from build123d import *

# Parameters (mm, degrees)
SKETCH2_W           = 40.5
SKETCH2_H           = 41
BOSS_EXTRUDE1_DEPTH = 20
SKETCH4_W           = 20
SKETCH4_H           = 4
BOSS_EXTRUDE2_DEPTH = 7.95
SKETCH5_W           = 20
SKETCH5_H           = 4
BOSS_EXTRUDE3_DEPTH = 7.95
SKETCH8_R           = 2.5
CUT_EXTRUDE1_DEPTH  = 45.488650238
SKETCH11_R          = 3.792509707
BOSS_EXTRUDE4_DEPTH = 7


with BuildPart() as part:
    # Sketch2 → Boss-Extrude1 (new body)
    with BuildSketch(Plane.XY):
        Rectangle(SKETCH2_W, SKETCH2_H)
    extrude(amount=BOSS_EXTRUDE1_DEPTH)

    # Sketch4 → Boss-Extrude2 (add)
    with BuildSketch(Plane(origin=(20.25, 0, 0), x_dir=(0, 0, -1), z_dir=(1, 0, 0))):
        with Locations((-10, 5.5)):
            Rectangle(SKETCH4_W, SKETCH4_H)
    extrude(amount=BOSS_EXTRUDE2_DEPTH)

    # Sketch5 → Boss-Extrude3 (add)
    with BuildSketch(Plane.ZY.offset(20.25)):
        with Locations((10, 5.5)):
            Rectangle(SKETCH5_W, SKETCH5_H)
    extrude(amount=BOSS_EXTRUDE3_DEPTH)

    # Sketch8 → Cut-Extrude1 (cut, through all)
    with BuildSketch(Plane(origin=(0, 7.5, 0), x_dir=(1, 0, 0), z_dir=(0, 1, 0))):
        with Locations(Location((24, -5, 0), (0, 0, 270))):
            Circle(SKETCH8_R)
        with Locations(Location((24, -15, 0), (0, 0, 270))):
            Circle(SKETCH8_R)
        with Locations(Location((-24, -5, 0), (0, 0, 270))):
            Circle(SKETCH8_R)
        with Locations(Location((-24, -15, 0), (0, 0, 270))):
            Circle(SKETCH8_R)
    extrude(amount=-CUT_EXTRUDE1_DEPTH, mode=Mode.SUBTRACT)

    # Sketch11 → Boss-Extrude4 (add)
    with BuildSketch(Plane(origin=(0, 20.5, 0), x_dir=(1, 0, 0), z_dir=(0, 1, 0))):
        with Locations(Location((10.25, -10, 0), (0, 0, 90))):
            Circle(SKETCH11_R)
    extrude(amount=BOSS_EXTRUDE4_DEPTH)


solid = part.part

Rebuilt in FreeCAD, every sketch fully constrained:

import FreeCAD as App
import Part
import Sketcher

V = App.Vector

doc = App.newDocument("Part")
body = doc.addObject("PartDesign::Body", "Body")

# Sketch on XY plane
sketch1 = body.newObject("Sketcher::SketchObject", "Sketch")
sketch1.AttachmentSupport = (doc.getObject("XY_Plane"), [""])
sketch1.MapMode = "FlatFace"
sketch1.addGeometry([
    Part.LineSegment(V(-20, 20, 0), V(-20, -20, 0)),
    Part.LineSegment(V(-20, -20, 0), V(20, -20, 0)),
    Part.LineSegment(V(20, -20, 0), V(20, 20, 0)),
    Part.LineSegment(V(20, 20, 0), V(-20, 20, 0)),
], False)
sketch1.addConstraint([
    Sketcher.Constraint("Coincident", 0, 2, 1, 1),
    Sketcher.Constraint("Coincident", 1, 2, 2, 1),
    Sketcher.Constraint("Coincident", 2, 2, 3, 1),
    Sketcher.Constraint("Coincident", 3, 2, 0, 1),
    Sketcher.Constraint("Vertical", 0),
    Sketcher.Constraint("Horizontal", 1),
    Sketcher.Constraint("Vertical", 2),
    Sketcher.Constraint("Horizontal", 3),
    Sketcher.Constraint("Symmetric", 0, 2, 2, 2, -1, 1),
    Sketcher.Constraint("DistanceY", 0, 2, 0, 1, 41.0),
    Sketcher.Constraint("DistanceX", 1, 1, 1, 2, 40.5),
])
pad1 = body.newObject("PartDesign::Pad", "Pad")
pad1.Profile = sketch1
pad1.Length = 20

# Sketch on YZ plane
sketch2 = body.newObject("Sketcher::SketchObject", "Sketch001")
sketch2.AttachmentSupport = (doc.getObject("YZ_Plane"), [""])
sketch2.MapMode = "FlatFace"
sketch2.AttachmentOffset = App.Placement(V(0, 0, 20.25), App.Rotation())
sketch2.addGeometry([
    Part.LineSegment(V(7.5, 20, 0), V(3.5, 20, 0)),
    Part.LineSegment(V(3.5, 20, 0), V(3.5, 0, 0)),
    Part.LineSegment(V(3.5, 0, 0), V(7.5, 0, 0)),
    Part.LineSegment(V(7.5, 0, 0), V(7.5, 20, 0)),
], False)
sketch2.addConstraint([
    Sketcher.Constraint("Coincident", 0, 2, 1, 1),
    Sketcher.Constraint("Coincident", 1, 2, 2, 1),
    Sketcher.Constraint("Coincident", 2, 2, 3, 1),
    Sketcher.Constraint("Coincident", 3, 2, 0, 1),
    Sketcher.Constraint("Horizontal", 0),
    Sketcher.Constraint("Vertical", 1),
    Sketcher.Constraint("Horizontal", 2),
    Sketcher.Constraint("Vertical", 3),
    Sketcher.Constraint("PointOnObject", 1, 2, -1),
    Sketcher.Constraint("DistanceX", 0, 2, 0, 1, 4.0),
    Sketcher.Constraint("DistanceY", 1, 2, 1, 1, 20.0),
    Sketcher.Constraint("DistanceX", -1, 1, 0, 2, 3.5),
])
pad2 = body.newObject("PartDesign::Pad", "Pad001")
pad2.Profile = sketch2
pad2.Length = 7.95

# Sketch on YZ plane
sketch3 = body.newObject("Sketcher::SketchObject", "Sketch002")
sketch3.AttachmentSupport = (doc.getObject("YZ_Plane"), [""])
sketch3.MapMode = "FlatFace"
sketch3.AttachmentOffset = App.Placement(V(0, 0, -20.25), App.Rotation())
sketch3.addGeometry([
    Part.LineSegment(V(7.5, 0, 0), V(3.5, 0, 0)),
    Part.LineSegment(V(3.5, 0, 0), V(3.5, 20, 0)),
    Part.LineSegment(V(3.5, 20, 0), V(7.5, 20, 0)),
    Part.LineSegment(V(7.5, 20, 0), V(7.5, 0, 0)),
], False)
sketch3.addConstraint([
    Sketcher.Constraint("Coincident", 0, 2, 1, 1),
    Sketcher.Constraint("Coincident", 1, 2, 2, 1),
    Sketcher.Constraint("Coincident", 2, 2, 3, 1),
    Sketcher.Constraint("Coincident", 3, 2, 0, 1),
    Sketcher.Constraint("Horizontal", 0),
    Sketcher.Constraint("Vertical", 1),
    Sketcher.Constraint("Horizontal", 2),
    Sketcher.Constraint("Vertical", 3),
    Sketcher.Constraint("PointOnObject", 0, 2, -1),
    Sketcher.Constraint("DistanceX", 0, 2, 0, 1, 4.0),
    Sketcher.Constraint("DistanceY", 1, 1, 1, 2, 20.0),
    Sketcher.Constraint("DistanceX", -1, 1, 0, 2, 3.5),
])
pad3 = body.newObject("PartDesign::Pad", "Pad002")
pad3.Profile = sketch3
pad3.Length = 7.95
pad3.Reversed = True

# Sketch on XZ plane
sketch4 = body.newObject("Sketcher::SketchObject", "Sketch003")
sketch4.AttachmentSupport = (doc.getObject("XZ_Plane"), [""])
sketch4.MapMode = "FlatFace"
sketch4.AttachmentOffset = App.Placement(V(0, 0, -7.5), App.Rotation())
sketch4.addGeometry([
    Part.Circle(V(24, 5, 0), V(0, 0, 1), 2.5),
    Part.Circle(V(24, 15, 0), V(0, 0, 1), 2.5),
    Part.Circle(V(-24, 5, 0), V(0, 0, 1), 2.5),
    Part.Circle(V(-24, 15, 0), V(0, 0, 1), 2.5),
], False)
sketch4.addConstraint([
    Sketcher.Constraint("Equal", 0, 1),
    Sketcher.Constraint("Equal", 1, 2),
    Sketcher.Constraint("Equal", 2, 3),
    Sketcher.Constraint("Symmetric", 0, 3, 2, 3, -2),
    Sketcher.Constraint("Symmetric", 1, 3, 3, 3, -2),
    Sketcher.Constraint("Vertical", 0, 3, 1, 3),
    Sketcher.Constraint("Diameter", 0, 5.0),
    Sketcher.Constraint("DistanceX", -1, 1, 0, 3, 24.0),
    Sketcher.Constraint("DistanceY", -1, 1, 0, 3, 5.0),
    Sketcher.Constraint("DistanceY", -1, 1, 1, 3, 15.0),
])
pocket1 = body.newObject("PartDesign::Pocket", "Pocket")
pocket1.Profile = sketch4
pocket1.Type = "ThroughAll"
pocket1.Reversed = True

# Sketch on XZ plane
sketch5 = body.newObject("Sketcher::SketchObject", "Sketch004")
sketch5.AttachmentSupport = (doc.getObject("XZ_Plane"), [""])
sketch5.MapMode = "FlatFace"
sketch5.AttachmentOffset = App.Placement(V(0, 0, -20.5), App.Rotation())
sketch5.addGeometry(Part.Circle(V(10.2, 10, 0), V(0, 0, 1), 3.8), False)
sketch5.addConstraint([
    Sketcher.Constraint("DistanceY", -1, 1, 0, 3, 10.0),
    Sketcher.Constraint("Diameter", 0, 7.585019),
    Sketcher.Constraint("DistanceX", -1, 1, 0, 3, 10.25),
])
pad4 = body.newObject("PartDesign::Pad", "Pad003")
pad4.Profile = sketch5
pad4.Length = 7
pad4.Reversed = True

doc.recompute()
